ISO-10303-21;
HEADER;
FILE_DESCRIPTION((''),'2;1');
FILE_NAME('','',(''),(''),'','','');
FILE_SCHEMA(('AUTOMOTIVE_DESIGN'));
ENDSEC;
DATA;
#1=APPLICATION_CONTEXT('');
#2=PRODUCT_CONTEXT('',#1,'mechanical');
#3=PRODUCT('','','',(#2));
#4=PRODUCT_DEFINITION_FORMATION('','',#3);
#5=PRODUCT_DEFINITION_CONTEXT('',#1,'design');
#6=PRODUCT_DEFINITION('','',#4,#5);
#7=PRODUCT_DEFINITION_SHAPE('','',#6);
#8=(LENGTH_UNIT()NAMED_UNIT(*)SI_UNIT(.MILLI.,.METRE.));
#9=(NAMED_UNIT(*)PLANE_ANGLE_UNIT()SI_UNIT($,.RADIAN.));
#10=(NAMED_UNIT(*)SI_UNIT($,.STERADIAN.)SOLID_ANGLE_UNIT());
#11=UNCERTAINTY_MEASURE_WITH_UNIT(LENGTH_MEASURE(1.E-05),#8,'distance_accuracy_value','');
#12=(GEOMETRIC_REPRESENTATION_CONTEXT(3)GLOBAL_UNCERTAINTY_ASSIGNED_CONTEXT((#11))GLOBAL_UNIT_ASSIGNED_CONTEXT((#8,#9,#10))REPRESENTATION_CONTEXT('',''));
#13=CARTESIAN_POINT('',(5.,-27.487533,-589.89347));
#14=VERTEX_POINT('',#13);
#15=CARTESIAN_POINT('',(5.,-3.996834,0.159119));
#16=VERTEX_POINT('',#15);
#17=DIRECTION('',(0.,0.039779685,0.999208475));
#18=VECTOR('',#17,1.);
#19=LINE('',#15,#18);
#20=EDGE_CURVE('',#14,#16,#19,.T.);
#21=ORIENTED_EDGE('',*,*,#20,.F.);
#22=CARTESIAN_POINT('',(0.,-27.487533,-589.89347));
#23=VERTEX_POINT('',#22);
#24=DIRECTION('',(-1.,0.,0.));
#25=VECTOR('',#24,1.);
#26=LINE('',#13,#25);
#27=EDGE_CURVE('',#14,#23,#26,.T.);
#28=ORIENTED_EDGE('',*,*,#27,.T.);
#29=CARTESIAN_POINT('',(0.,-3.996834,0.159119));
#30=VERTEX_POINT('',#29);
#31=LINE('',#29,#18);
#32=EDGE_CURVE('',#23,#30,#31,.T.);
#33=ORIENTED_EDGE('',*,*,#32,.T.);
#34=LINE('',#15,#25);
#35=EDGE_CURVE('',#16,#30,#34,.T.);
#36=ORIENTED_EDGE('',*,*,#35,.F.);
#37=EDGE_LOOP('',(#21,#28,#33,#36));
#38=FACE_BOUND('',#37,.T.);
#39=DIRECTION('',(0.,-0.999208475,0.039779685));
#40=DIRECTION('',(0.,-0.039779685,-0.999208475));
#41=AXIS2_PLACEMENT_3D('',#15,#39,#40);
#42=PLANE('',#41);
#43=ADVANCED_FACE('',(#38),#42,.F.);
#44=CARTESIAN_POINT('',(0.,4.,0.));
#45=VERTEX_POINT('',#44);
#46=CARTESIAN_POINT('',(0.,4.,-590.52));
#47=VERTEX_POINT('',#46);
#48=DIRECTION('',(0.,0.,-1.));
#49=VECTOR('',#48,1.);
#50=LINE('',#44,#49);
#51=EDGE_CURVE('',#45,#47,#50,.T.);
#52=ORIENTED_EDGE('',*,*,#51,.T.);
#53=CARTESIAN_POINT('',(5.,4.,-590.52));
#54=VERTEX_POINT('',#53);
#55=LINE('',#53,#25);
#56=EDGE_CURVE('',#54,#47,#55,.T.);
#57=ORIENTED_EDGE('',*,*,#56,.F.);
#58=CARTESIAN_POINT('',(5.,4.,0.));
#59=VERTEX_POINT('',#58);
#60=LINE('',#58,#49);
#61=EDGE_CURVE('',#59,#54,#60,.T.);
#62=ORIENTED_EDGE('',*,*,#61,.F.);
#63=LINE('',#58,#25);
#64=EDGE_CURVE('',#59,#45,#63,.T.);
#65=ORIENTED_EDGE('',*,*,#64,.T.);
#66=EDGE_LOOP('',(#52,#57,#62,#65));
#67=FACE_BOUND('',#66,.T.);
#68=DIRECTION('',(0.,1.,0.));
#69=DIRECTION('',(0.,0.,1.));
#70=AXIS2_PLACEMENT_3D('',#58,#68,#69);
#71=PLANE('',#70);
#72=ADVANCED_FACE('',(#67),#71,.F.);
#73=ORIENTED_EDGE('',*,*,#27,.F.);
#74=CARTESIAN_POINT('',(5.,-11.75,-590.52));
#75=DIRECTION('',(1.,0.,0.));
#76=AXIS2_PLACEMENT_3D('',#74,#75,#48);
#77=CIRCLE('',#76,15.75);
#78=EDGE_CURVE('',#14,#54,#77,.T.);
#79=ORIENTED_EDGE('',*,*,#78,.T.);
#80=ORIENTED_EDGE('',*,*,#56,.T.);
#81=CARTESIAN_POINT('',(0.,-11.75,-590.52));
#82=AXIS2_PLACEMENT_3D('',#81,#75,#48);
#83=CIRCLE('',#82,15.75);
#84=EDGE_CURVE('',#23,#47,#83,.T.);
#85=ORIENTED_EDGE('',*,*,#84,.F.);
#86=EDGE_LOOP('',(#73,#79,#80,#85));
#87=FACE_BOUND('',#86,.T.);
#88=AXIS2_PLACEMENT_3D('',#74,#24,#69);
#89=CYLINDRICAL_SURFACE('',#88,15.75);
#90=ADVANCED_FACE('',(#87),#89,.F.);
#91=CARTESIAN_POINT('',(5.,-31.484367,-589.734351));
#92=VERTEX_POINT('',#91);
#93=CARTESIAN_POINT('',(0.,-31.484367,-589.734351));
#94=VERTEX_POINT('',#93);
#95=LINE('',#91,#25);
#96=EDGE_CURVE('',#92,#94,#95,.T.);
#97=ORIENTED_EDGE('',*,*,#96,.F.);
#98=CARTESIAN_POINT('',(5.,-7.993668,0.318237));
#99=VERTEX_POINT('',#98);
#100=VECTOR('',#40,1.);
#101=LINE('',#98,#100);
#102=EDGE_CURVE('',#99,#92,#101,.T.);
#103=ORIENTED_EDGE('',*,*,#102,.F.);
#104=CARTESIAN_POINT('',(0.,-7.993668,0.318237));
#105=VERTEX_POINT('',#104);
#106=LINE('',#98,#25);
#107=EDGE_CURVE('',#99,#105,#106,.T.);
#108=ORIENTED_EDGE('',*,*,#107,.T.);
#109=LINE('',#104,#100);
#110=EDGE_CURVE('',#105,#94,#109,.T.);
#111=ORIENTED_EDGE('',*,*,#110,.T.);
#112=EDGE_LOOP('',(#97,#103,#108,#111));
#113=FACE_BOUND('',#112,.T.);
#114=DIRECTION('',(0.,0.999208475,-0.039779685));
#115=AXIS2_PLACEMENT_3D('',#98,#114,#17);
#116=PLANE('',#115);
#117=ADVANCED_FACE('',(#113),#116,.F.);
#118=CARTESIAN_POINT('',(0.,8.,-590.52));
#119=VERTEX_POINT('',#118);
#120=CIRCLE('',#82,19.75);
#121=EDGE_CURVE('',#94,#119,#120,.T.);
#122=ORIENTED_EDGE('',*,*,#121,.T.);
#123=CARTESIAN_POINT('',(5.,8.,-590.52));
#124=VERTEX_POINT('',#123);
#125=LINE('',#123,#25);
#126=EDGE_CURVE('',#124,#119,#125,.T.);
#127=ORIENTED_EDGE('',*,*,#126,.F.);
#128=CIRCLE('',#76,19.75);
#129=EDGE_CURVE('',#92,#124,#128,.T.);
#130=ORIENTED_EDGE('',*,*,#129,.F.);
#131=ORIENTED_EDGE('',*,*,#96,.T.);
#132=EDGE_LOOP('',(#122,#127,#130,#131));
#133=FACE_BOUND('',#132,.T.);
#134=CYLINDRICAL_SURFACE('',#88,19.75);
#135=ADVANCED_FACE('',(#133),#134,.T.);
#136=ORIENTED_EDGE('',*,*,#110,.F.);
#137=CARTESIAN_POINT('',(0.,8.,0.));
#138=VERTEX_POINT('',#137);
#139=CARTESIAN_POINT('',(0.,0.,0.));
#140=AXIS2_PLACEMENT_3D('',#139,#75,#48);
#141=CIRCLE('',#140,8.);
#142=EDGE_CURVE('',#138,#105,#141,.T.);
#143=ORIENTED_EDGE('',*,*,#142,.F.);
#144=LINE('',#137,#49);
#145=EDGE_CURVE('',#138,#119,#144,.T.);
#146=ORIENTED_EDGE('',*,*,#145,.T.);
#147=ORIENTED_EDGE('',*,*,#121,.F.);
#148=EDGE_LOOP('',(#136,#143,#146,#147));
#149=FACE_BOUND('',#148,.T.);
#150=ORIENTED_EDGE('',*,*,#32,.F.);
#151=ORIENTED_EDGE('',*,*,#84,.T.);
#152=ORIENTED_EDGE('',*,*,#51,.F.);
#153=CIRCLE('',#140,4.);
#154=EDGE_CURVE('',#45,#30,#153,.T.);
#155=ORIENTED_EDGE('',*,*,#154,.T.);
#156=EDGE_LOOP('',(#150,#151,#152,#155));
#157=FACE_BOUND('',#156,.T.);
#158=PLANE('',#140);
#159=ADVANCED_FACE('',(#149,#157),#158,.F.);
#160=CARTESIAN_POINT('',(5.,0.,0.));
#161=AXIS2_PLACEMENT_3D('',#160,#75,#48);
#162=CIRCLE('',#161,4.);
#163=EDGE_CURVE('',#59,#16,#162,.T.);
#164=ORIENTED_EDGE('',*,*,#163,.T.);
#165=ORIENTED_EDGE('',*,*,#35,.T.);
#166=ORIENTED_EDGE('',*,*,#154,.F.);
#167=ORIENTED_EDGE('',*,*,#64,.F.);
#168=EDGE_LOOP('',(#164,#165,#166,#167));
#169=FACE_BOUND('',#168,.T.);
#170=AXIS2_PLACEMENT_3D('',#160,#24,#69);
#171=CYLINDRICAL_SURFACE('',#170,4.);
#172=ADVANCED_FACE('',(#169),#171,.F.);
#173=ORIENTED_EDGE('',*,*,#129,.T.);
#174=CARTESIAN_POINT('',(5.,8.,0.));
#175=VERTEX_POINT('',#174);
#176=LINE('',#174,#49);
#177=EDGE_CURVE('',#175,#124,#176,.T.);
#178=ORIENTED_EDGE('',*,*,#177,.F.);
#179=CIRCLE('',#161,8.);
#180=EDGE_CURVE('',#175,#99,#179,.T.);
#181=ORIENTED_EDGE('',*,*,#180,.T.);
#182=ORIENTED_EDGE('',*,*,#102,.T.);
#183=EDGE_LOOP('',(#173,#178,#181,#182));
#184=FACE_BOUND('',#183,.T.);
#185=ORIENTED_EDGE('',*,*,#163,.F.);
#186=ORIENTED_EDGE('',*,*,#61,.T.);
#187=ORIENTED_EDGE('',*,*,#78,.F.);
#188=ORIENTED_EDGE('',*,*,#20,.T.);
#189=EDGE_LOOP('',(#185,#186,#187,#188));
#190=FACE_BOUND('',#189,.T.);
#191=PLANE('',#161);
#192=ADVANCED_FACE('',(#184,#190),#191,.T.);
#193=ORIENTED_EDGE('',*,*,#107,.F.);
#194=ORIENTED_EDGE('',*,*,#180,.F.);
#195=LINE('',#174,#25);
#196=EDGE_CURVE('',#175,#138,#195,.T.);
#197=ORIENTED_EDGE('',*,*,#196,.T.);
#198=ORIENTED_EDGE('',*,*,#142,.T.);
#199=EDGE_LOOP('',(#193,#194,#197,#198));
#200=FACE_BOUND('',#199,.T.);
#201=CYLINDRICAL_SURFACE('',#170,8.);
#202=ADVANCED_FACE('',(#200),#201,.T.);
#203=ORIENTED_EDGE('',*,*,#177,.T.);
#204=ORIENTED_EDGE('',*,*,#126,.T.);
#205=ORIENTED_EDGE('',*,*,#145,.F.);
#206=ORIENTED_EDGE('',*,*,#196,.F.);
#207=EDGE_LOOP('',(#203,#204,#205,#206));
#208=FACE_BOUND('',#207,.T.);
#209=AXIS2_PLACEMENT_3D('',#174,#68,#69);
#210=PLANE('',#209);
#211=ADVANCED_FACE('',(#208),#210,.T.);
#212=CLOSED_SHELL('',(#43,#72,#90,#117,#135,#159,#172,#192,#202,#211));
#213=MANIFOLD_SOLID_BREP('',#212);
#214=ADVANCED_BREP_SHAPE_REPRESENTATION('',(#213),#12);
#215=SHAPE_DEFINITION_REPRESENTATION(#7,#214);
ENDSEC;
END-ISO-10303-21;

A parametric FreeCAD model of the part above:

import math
import FreeCAD as App
import Part
import Sketcher

doc = App.newDocument("Part")
body = doc.addObject("PartDesign::Body", "Body")

sketch1 = body.newObject("Sketcher::SketchObject", "Sketch")
sketch1.AttachmentSupport = (doc.getObject("YZ_Plane"), [""])
sketch1.MapMode = "FlatFace"
sketch1.addGeometry([
    Part.LineSegment(App.Vector(8, -590.5, 0), App.Vector(8, 0, 0)),
    Part.ArcOfCircle(Part.Circle(App.Vector(0, 0, 0), App.Vector(0, 0, 1), 8), math.radians(0), math.radians(178)),
    Part.LineSegment(App.Vector(-8, 0.3, 0), App.Vector(-31.5, -589.7, 0)),
    Part.ArcOfCircle(Part.Circle(App.Vector(-11.8, -590.5, 0), App.Vector(0, 0, 1), 19.8), math.radians(178), math.radians(360)),
    Part.LineSegment(App.Vector(-27.5, -589.9, 0), App.Vector(-4, 0.2, 0)),
    Part.ArcOfCircle(Part.Circle(App.Vector(0, 0, 0), App.Vector(0, 0, 1), 4), math.radians(0), math.radians(178)),
    Part.LineSegment(App.Vector(4, 0, 0), App.Vector(4, -590.5, 0)),
    Part.ArcOfCircle(Part.Circle(App.Vector(-11.7, -590.5, 0), App.Vector(0, 0, 1), 15.7), math.radians(-90), math.radians(0)),
    Part.ArcOfCircle(Part.Circle(App.Vector(-11.7, -590.5, 0), App.Vector(0, 0, 1), 15.8), math.radians(178), math.radians(270)),
], False)
sketch1.addConstraint([
    Sketcher.Constraint("Tangent", 0, 2, 1, 1),
    Sketcher.Constraint("Tangent", 1, 2, 2, 1),
    Sketcher.Constraint("Tangent", 2, 2, 3, 1),
    Sketcher.Constraint("Tangent", 3, 2, 0, 1),
    Sketcher.Constraint("Tangent", 4, 2, 5, 2),
    Sketcher.Constraint("Tangent", 5, 1, 6, 1),
    Sketcher.Constraint("Tangent", 6, 2, 7, 2),
    Sketcher.Constraint("Tangent", 7, 1, 8, 2),
    Sketcher.Constraint("Tangent", 8, 1, 4, 1),
    Sketcher.Constraint("Vertical", 0),
    Sketcher.Constraint("Vertical", 6),
    Sketcher.Constraint("Coincident", 1, 3, -1, 1),
    Sketcher.Constraint("Coincident", 5, 3, -1, 1),
    Sketcher.Constraint("Coincident", 7, 3, 3, 3),
    Sketcher.Constraint("Equal", 7, 8),
    Sketcher.Constraint("Vertical", 8, 3, 7, 1),
    Sketcher.Constraint("Radius", 1, 8.0),
    Sketcher.Constraint("Radius", 5, 4.0),
    Sketcher.Constraint("Radius", 3, 19.75),
    Sketcher.Constraint("DistanceY", 0, 1, 0, 2, 590.52),
])
pad1 = body.newObject("PartDesign::Pad", "Pad")
pad1.Profile = sketch1
pad1.Length = 5

doc.recompute()
